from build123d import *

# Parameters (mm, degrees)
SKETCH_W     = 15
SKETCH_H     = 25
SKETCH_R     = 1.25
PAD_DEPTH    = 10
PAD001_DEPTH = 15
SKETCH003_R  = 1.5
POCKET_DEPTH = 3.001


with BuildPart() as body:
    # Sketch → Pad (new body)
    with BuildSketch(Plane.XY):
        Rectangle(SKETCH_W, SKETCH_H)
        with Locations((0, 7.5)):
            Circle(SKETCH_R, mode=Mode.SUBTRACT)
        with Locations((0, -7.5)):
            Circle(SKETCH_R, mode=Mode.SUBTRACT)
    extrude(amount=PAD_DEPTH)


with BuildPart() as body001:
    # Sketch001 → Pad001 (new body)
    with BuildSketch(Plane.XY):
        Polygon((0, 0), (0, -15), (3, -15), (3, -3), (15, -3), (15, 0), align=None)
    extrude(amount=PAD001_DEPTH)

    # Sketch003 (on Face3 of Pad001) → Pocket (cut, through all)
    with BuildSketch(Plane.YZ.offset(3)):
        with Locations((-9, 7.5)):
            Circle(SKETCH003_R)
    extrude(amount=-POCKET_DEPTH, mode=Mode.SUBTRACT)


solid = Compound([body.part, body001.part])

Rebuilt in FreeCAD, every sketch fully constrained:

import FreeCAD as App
import Part
import Sketcher

V = App.Vector
Q = App.Units.Quantity

doc = App.newDocument("Part")
body = doc.addObject("PartDesign::Body", "Body")

# Sketch on XY plane
sketch1 = body.newObject("Sketcher::SketchObject", "Sketch")
sketch1.AttachmentSupport = (doc.getObject("XY_Plane"), [""])
sketch1.MapMode = "FlatFace"
sketch1.addGeometry(Part.LineSegment(V(-7.5, 12.5, 0), V(-7.5, -12.5, 0)), False)
sketch1.addGeometry(Part.LineSegment(V(-7.5, -12.5, 0), V(7.5, -12.5, 0)), False)
sketch1.addGeometry(Part.LineSegment(V(7.5, -12.5, 0), V(7.5, 12.5, 0)), False)
sketch1.addGeometry(Part.LineSegment(V(7.5, 12.5, 0), V(-7.5, 12.5, 0)), False)
sketch1.addGeometry(Part.Circle(V(0, -7.5, 0), V(0, 0, 1), 1.2), False)
sketch1.addGeometry(Part.Circle(V(0, 7.5, 0), V(0, 0, 1), 1.2), False)
sketch1.addConstraint(Sketcher.Constraint("Coincident", 0, 2, 1, 1))
sketch1.addConstraint(Sketcher.Constraint("Coincident", 1, 2, 2, 1))
sketch1.addConstraint(Sketcher.Constraint("Coincident", 2, 2, 3, 1))
sketch1.addConstraint(Sketcher.Constraint("Coincident", 3, 2, 0, 1))
sketch1.addConstraint(Sketcher.Constraint("Vertical", 0))
sketch1.addConstraint(Sketcher.Constraint("Horizontal", 1))
sketch1.addConstraint(Sketcher.Constraint("Vertical", 2))
sketch1.addConstraint(Sketcher.Constraint("Horizontal", 3))
sketch1.addConstraint(Sketcher.Constraint("Equal", 4, 5))
sketch1.addConstraint(Sketcher.Constraint("Symmetric", 4, 3, 5, 3, -1, 1))
sketch1.addConstraint(Sketcher.Constraint("Symmetric", 0, 2, 2, 2, -1, 1))
sketch1.addConstraint(Sketcher.Constraint("PointOnObject", 4, 3, -2))
sketch1.addConstraint(Sketcher.Constraint("Diameter", 4, Q("2.5 mm")))
sketch1.addConstraint(Sketcher.Constraint("DistanceX", 1, 1, 1, 2, Q("15 mm")))
sketch1.addConstraint(Sketcher.Constraint("DistanceY", 0, 2, 0, 1, Q("25 mm")))
sketch1.addConstraint(Sketcher.Constraint("DistanceY", 4, 3, 5, 3, Q("15 mm")))
pad1 = body.newObject("PartDesign::Pad", "Pad")
pad1.Profile = sketch1
pad1.Length = 10
body2 = doc.addObject("PartDesign::Body", "Body001")

# Sketch on XY plane
sketch2 = body2.newObject("Sketcher::SketchObject", "Sketch001")
sketch2.AttachmentSupport = (doc.getObject("XY_Plane001"), [""])
sketch2.MapMode = "FlatFace"
sketch2.addGeometry(Part.LineSegment(V(0, 0, 0), V(0, -15, 0)), False)
sketch2.addGeometry(Part.LineSegment(V(0, -15, 0), V(3, -15, 0)), False)
sketch2.addGeometry(Part.LineSegment(V(3, -15, 0), V(3, -3, 0)), False)
sketch2.addGeometry(Part.LineSegment(V(3, -3, 0), V(15, -3, 0)), False)
sketch2.addGeometry(Part.LineSegment(V(15, -3, 0), V(15, 0, 0)), False)
sketch2.addGeometry(Part.LineSegment(V(15, 0, 0), V(0, 0, 0)), False)
sketch2.addConstraint(Sketcher.Constraint("Coincident", 0, 2, 1, 1))
sketch2.addConstraint(Sketcher.Constraint("Coincident", 1, 2, 2, 1))
sketch2.addConstraint(Sketcher.Constraint("Coincident", 2, 2, 3, 1))
sketch2.addConstraint(Sketcher.Constraint("Coincident", 3, 2, 4, 1))
sketch2.addConstraint(Sketcher.Constraint("Coincident", 4, 2, 5, 1))
sketch2.addConstraint(Sketcher.Constraint("Coincident", 5, 2, 0, 1))
sketch2.addConstraint(Sketcher.Constraint("Vertical", 0))
sketch2.addConstraint(Sketcher.Constraint("Horizontal", 1))
sketch2.addConstraint(Sketcher.Constraint("Vertical", 2))
sketch2.addConstraint(Sketcher.Constraint("Horizontal", 3))
sketch2.addConstraint(Sketcher.Constraint("Vertical", 4))
sketch2.addConstraint(Sketcher.Constraint("Horizontal", 5))
sketch2.addConstraint(Sketcher.Constraint("Coincident", 5, 2, -1, 1))
sketch2.addConstraint(Sketcher.Constraint("Equal", 5, 0))
sketch2.addConstraint(Sketcher.Constraint("Equal", 3, 2))
sketch2.addConstraint(Sketcher.Constraint("DistanceX", 1, 1, 1, 2, Q("3 mm")))
sketch2.addConstraint(Sketcher.Constraint("DistanceX", 3, 1, 3, 2, Q("12 mm")))
pad2 = body2.newObject("PartDesign::Pad", "Pad001")
pad2.Profile = sketch2
pad2.Length = 15

# Sketch on YZ plane
sketch3 = body2.newObject("Sketcher::SketchObject", "Sketch002")
sketch3.AttachmentSupport = (doc.getObject("YZ_Plane001"), [""])
sketch3.MapMode = "FlatFace"
sketch3.AttachmentOffset = App.Placement(V(0, 0, 3), App.Rotation())
sketch3.addGeometry(Part.Circle(V(-9, 7.5, 0), V(0, 0, 1), 1.5), False)
sketch3.addConstraint(Sketcher.Constraint("Diameter", 0, Q("3 mm")))
sketch3.addConstraint(Sketcher.Constraint("DistanceX", 0, 3, -1, 1, Q("9 mm")))
sketch3.addConstraint(Sketcher.Constraint("DistanceY", -1, 1, 0, 3, Q("7.5 mm")))
pocket1 = body2.newObject("PartDesign::Pocket", "Pocket")
pocket1.Profile = sketch3
pocket1.Type = "ThroughAll"

doc.recompute()
